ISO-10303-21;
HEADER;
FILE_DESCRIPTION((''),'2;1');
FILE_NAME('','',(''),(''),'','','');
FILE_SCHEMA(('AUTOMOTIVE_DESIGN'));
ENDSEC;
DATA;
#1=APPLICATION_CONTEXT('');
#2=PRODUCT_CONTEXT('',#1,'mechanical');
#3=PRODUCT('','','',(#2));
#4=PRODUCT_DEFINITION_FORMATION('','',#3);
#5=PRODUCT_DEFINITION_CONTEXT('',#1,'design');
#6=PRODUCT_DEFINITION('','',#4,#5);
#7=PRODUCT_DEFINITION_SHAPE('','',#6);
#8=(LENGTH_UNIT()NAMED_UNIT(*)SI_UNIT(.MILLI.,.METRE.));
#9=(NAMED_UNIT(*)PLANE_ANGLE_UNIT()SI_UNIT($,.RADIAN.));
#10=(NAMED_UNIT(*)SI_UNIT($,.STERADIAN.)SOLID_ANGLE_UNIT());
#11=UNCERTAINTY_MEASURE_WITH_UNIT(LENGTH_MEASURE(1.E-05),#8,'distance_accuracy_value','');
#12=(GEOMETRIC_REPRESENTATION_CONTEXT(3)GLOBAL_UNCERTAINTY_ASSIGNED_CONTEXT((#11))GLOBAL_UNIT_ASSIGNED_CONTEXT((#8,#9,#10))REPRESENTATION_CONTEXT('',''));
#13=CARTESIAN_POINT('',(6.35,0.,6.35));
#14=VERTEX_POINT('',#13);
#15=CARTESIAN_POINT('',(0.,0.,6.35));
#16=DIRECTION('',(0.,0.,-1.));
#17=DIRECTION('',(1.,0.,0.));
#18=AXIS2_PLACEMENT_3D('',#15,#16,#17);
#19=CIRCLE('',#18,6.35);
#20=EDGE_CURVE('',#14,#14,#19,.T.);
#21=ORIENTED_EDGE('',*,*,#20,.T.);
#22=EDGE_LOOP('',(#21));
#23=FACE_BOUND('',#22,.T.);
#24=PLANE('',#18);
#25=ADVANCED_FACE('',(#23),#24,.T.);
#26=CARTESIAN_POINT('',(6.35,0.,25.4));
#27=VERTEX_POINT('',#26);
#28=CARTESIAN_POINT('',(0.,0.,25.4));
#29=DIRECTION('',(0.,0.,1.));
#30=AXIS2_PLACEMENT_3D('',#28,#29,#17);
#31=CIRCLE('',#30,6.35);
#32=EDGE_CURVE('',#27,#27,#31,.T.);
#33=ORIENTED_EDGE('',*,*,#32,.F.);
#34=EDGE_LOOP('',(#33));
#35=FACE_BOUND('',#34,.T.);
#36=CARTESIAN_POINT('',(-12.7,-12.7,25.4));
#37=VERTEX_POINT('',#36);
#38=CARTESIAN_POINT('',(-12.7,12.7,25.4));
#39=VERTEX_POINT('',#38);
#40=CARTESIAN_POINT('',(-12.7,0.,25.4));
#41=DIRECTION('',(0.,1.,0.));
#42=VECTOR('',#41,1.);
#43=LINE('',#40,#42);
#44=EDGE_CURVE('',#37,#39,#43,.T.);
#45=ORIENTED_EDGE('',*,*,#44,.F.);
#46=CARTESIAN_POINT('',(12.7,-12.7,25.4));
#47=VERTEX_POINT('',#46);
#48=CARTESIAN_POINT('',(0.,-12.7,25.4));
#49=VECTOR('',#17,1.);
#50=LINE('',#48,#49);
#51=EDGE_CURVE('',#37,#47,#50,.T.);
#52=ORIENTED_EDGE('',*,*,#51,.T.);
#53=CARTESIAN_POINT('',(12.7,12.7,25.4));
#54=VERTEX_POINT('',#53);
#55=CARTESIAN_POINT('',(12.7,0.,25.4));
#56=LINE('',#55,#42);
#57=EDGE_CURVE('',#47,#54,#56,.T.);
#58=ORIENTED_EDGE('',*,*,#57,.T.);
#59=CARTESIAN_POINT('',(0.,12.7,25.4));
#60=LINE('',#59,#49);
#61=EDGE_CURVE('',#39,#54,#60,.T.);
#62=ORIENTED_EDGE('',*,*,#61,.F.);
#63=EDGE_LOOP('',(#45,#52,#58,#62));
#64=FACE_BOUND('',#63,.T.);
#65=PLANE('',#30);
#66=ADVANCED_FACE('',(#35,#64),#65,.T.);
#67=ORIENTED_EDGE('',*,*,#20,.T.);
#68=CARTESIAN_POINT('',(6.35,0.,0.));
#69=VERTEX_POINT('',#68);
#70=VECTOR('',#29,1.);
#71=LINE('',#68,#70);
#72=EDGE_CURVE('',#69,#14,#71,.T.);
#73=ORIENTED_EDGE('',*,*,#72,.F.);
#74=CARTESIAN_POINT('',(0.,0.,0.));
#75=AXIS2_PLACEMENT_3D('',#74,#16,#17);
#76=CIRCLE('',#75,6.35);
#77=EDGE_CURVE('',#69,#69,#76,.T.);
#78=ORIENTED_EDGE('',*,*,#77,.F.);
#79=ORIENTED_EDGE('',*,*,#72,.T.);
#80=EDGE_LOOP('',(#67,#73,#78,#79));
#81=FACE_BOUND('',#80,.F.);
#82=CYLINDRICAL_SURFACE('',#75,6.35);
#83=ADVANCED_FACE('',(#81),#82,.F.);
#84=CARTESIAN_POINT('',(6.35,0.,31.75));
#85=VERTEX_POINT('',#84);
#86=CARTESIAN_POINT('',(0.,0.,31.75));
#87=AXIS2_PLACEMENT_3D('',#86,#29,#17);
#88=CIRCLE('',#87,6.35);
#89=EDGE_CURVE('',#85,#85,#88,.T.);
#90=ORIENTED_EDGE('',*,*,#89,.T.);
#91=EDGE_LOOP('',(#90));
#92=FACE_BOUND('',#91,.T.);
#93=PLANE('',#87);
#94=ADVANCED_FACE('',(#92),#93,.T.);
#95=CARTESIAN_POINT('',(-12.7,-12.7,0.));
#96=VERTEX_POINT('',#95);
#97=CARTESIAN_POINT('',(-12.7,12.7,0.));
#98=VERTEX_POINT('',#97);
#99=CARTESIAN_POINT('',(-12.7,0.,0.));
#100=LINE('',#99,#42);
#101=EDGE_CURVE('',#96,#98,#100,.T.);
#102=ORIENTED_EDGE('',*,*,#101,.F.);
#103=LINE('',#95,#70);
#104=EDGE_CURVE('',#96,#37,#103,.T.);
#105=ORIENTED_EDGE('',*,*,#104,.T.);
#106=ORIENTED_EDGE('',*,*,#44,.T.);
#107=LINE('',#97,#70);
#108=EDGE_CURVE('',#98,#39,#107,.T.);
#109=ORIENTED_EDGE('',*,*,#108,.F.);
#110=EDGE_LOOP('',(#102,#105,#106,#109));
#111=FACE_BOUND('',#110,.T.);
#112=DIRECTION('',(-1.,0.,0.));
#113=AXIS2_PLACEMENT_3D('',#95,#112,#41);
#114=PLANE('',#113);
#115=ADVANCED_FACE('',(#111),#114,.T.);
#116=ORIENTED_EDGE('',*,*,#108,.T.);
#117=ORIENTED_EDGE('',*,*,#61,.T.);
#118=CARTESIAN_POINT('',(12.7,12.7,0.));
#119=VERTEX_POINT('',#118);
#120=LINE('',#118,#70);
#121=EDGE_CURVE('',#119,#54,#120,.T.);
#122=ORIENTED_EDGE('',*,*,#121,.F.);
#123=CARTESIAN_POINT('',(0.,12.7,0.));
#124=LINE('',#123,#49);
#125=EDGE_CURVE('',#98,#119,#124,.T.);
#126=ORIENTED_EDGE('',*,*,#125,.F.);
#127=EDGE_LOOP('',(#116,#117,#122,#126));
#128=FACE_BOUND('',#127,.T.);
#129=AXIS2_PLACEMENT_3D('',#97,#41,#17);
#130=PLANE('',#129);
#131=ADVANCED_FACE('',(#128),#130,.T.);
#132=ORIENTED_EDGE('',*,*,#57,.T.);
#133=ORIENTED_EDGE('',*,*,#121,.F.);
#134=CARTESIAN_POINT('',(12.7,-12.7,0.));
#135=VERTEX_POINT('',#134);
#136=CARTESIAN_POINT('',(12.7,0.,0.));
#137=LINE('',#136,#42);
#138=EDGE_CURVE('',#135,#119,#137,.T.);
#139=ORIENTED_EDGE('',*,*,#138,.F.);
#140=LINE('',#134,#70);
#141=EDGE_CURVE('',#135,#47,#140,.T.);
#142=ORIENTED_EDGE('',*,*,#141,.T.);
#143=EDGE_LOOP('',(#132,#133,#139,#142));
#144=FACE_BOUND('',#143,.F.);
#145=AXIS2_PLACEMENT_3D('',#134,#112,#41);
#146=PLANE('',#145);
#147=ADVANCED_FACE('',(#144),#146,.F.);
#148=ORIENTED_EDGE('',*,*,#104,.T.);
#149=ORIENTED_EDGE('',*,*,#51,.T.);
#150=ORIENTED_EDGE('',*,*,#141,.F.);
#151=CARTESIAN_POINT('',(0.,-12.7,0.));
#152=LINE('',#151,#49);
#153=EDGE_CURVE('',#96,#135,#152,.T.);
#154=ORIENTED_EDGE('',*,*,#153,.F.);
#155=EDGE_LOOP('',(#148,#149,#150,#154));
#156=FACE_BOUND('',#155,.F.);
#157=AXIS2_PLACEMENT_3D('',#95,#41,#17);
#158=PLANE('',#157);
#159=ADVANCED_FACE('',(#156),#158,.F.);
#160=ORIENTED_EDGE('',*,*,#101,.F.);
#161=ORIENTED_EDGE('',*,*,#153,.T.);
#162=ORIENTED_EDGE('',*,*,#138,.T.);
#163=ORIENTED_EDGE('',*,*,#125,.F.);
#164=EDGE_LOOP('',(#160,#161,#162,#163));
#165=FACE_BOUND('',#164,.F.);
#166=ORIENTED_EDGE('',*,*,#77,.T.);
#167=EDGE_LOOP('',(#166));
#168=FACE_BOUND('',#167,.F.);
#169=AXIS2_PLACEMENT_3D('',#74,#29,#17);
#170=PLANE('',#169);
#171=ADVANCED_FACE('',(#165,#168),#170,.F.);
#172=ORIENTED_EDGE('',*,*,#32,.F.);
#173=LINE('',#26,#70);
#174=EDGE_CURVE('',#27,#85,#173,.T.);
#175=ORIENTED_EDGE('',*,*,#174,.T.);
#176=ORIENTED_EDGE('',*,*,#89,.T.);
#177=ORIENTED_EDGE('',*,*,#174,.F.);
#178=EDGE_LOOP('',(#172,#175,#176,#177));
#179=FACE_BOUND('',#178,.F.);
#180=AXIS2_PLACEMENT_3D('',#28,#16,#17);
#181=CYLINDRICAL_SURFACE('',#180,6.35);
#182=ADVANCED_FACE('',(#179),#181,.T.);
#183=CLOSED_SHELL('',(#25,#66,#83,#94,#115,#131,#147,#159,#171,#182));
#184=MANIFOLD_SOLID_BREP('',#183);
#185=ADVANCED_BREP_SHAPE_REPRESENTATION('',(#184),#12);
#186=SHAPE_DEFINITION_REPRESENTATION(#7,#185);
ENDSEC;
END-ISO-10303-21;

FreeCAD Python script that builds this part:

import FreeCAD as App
import Part
import Sketcher

V = App.Vector
Q = App.Units.Quantity


def add_polygon(sketch, points):
    """Adds a closed chain of lines whose ends are joined by coincident constraints."""
    first, n = sketch.GeometryCount, len(points)
    for a, b in zip(points, points[1:] + points[:1]):
        sketch.addGeometry(Part.LineSegment(App.Vector(*a, 0), App.Vector(*b, 0)), False)
    for i in range(n):
        sketch.addConstraint(Sketcher.Constraint("Coincident", first + i, 2, first + (i + 1) % n, 1))

doc = App.newDocument("Part")
body = doc.addObject("PartDesign::Body", "Body")

# Sketch on XY plane
sketch1 = doc.addObject("Sketcher::SketchObject", "Sketch")
body.addObject(sketch1)
sketch1.AttachmentSupport = (doc.XY_Plane, [""])
sketch1.MapMode = "FlatFace"
add_polygon(sketch1, [(-13, 13), (-13, -13), (13, -13), (13, 13)])  # lines 0-3
sketch1.addConstraint([
    Sketcher.Constraint("Vertical", 0),
    Sketcher.Constraint("Horizontal", 1),
    Sketcher.Constraint("Vertical", 2),
    Sketcher.Constraint("Horizontal", 3),
    Sketcher.Constraint("Symmetric", 0, 2, 2, 2, -1, 1),
    Sketcher.Constraint("Equal", 3, 0),
    Sketcher.Constraint("DistanceX", 1, 1, 1, 2, Q("1 in")),
])
pad1 = doc.addObject("PartDesign::Pad", "Pad")
body.addObject(pad1)
pad1.Profile = sketch1
pad1.Length = Q("1 in")

# Sketch on XY plane
sketch2 = doc.addObject("Sketcher::SketchObject", "Sketch001")
body.addObject(sketch2)
sketch2.AttachmentSupport = (doc.XY_Plane, [""])
sketch2.MapMode = "FlatFace"
sketch2.addGeometry(Part.Circle(V(0, 0, 0), V(0, 0, 1), 6), False)
sketch2.addConstraint([
    Sketcher.Constraint("Coincident", 0, 3, -1, 1),
    Sketcher.Constraint("Diameter", 0, Q("0.5 in")),
])
pocket1 = doc.addObject("PartDesign::Pocket", "Pocket")
body.addObject(pocket1)
pocket1.Profile = sketch2
pocket1.Length = Q("0.25 in")
pocket1.Reversed = True

# Sketch on XY plane
sketch3 = doc.addObject("Sketcher::SketchObject", "Sketch002")
body.addObject(sketch3)
sketch3.AttachmentSupport = (doc.XY_Plane, [""])
sketch3.MapMode = "FlatFace"
sketch3.AttachmentOffset = App.Placement(V(0, 0, 1 * 25.4), App.Rotation())
sketch3.addGeometry(Part.Circle(V(0, 0, 0), V(0, 0, 1), 6), False)
sketch3.addConstraint([
    Sketcher.Constraint("Coincident", 0, 3, -1, 1),
    Sketcher.Constraint("Diameter", 0, Q("0.5 in")),
])
pad2 = doc.addObject("PartDesign::Pad", "Pad001")
body.addObject(pad2)
pad2.Profile = sketch3
pad2.Length = Q("0.25 in")

doc.recompute()
